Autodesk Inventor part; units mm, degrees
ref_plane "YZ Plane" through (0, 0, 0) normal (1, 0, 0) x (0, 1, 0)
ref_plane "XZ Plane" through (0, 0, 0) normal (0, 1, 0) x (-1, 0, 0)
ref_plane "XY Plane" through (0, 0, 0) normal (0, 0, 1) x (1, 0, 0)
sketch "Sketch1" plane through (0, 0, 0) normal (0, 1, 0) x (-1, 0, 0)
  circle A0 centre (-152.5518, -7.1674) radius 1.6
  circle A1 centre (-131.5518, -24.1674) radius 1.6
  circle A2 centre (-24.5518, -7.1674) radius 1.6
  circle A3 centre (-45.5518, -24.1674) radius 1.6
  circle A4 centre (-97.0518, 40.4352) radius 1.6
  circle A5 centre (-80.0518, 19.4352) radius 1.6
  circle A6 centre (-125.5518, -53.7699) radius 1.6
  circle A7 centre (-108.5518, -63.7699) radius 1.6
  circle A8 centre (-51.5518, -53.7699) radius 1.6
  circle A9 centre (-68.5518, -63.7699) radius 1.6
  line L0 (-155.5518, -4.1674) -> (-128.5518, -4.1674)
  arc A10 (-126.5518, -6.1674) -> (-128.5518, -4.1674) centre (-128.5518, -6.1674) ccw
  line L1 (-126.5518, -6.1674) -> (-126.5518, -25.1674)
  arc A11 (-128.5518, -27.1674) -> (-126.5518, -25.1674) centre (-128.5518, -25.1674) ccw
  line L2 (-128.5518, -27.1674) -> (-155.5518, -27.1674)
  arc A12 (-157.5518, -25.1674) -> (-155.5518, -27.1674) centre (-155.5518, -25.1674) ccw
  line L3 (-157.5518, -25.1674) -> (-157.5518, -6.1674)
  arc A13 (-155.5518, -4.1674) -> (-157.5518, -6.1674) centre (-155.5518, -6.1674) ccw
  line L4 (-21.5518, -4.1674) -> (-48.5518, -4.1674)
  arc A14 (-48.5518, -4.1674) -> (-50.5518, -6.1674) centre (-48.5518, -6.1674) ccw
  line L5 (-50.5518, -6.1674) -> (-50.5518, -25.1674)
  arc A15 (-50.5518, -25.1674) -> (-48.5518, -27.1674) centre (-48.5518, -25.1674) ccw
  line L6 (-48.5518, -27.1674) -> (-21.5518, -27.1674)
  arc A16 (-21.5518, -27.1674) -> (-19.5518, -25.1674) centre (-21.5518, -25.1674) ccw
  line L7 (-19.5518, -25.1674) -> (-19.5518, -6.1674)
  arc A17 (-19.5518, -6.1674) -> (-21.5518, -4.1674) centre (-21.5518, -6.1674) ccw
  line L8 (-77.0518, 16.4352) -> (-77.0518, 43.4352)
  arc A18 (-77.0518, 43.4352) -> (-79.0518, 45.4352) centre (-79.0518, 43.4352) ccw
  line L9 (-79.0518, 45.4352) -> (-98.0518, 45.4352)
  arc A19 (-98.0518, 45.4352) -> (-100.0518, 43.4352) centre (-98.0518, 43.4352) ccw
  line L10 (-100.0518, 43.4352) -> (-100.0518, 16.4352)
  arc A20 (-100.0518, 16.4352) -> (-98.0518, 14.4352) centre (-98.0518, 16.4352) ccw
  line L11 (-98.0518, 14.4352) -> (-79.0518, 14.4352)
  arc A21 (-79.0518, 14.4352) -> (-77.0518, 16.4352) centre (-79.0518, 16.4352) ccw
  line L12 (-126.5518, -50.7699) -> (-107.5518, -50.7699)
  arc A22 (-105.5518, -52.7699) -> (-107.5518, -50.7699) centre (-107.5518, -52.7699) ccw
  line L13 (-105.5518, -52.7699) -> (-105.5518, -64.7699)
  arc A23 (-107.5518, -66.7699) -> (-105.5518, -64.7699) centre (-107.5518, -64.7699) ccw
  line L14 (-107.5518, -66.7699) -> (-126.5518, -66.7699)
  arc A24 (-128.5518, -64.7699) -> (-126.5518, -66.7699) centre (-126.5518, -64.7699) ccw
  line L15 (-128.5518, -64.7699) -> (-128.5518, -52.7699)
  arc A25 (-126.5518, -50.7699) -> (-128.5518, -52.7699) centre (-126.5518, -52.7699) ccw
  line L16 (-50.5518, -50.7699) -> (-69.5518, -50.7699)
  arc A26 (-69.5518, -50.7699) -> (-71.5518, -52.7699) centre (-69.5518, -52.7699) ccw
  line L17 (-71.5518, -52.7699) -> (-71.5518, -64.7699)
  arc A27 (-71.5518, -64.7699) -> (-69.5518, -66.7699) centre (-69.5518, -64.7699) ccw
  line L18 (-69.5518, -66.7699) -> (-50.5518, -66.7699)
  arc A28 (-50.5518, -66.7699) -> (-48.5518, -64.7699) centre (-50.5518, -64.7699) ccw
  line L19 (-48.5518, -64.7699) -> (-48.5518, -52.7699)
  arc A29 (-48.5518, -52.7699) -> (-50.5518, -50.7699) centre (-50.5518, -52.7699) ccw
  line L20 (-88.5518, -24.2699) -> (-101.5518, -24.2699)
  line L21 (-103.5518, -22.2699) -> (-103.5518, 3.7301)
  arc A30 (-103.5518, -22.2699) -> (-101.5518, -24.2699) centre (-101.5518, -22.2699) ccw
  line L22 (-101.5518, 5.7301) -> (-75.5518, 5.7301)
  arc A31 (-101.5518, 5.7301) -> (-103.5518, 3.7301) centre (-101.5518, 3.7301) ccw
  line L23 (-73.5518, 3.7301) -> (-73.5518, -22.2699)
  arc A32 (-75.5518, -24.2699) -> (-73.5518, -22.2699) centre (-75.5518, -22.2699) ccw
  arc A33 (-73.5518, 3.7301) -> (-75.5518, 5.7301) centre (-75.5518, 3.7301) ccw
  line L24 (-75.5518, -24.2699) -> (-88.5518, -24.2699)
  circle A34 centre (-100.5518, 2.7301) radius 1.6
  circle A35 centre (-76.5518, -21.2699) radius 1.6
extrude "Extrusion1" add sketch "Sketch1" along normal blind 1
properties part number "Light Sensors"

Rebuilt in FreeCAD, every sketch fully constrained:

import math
import FreeCAD as App
import Part
import Sketcher

doc = App.newDocument("Part")
body = doc.addObject("PartDesign::Body", "Body")
body.AllowCompound = True

sketch1 = body.newObject("Sketcher::SketchObject", "Sketch")
sketch1.AttachmentSupport = (doc.getObject("XZ_Plane"), [""])
sketch1.MapMode = "FlatFace"
sketch1.addGeometry([
    Part.LineSegment(App.Vector(128.5518, -4.1674, 0), App.Vector(155.5518, -4.1674, 0)),
    Part.ArcOfCircle(Part.Circle(App.Vector(155.5518, -6.1674, 0), App.Vector(0, 0, 1), 2), math.radians(0), math.radians(90)),
    Part.LineSegment(App.Vector(157.5518, -6.1674, 0), App.Vector(157.5518, -25.1674, 0)),
    Part.ArcOfCircle(Part.Circle(App.Vector(155.5518, -25.1674, 0), App.Vector(0, 0, 1), 2), math.radians(-90), math.radians(0)),
    Part.LineSegment(App.Vector(155.5518, -27.1674, 0), App.Vector(128.5518, -27.1674, 0)),
    Part.ArcOfCircle(Part.Circle(App.Vector(128.5518, -25.1674, 0), App.Vector(0, 0, 1), 2), math.radians(180), math.radians(270)),
    Part.LineSegment(App.Vector(126.5518, -25.1674, 0), App.Vector(126.5518, -6.1674, 0)),
    Part.ArcOfCircle(Part.Circle(App.Vector(128.5518, -6.1674, 0), App.Vector(0, 0, 1), 2), math.radians(90), math.radians(180)),
    Part.Circle(App.Vector(131.5518, -24.1674, 0), App.Vector(0, 0, 1), 1.6),
    Part.Circle(App.Vector(152.5518, -7.1674, 0), App.Vector(0, 0, 1), 1.6),
    Part.ArcOfCircle(Part.Circle(App.Vector(21.5518, -6.1674, 0), App.Vector(0, 0, 1), 2), math.radians(90), math.radians(180)),
    Part.LineSegment(App.Vector(21.5518, -4.1674, 0), App.Vector(48.5518, -4.1674, 0)),
    Part.ArcOfCircle(Part.Circle(App.Vector(48.5518, -6.1674, 0), App.Vector(0, 0, 1), 2), math.radians(0), math.radians(90)),
    Part.LineSegment(App.Vector(50.5518, -6.1674, 0), App.Vector(50.5518, -25.1674, 0)),
    Part.ArcOfCircle(Part.Circle(App.Vector(48.5518, -25.1674, 0), App.Vector(0, 0, 1), 2), math.radians(-90), math.radians(0)),
    Part.LineSegment(App.Vector(48.5518, -27.1674, 0), App.Vector(21.5518, -27.1674, 0)),
    Part.ArcOfCircle(Part.Circle(App.Vector(21.5518, -25.1674, 0), App.Vector(0, 0, 1), 2), math.radians(180), math.radians(270)),
    Part.LineSegment(App.Vector(19.5518, -25.1674, 0), App.Vector(19.5518, -6.1674, 0)),
    Part.Circle(App.Vector(45.5518, -24.1674, 0), App.Vector(0, 0, 1), 1.6),
    Part.Circle(App.Vector(24.5518, -7.1674, 0), App.Vector(0, 0, 1), 1.6),
    Part.ArcOfCircle(Part.Circle(App.Vector(79.0518, 16.4352, 0), App.Vector(0, 0, 1), 2), math.radians(180), math.radians(270)),
    Part.LineSegment(App.Vector(77.0518, 16.4352, 0), App.Vector(77.0518, 43.4352, 0)),
    Part.ArcOfCircle(Part.Circle(App.Vector(79.0518, 43.4352, 0), App.Vector(0, 0, 1), 2), math.radians(90), math.radians(180)),
    Part.LineSegment(App.Vector(79.0518, 45.4352, 0), App.Vector(98.0518, 45.4352, 0)),
    Part.ArcOfCircle(Part.Circle(App.Vector(98.0518, 43.4352, 0), App.Vector(0, 0, 1), 2), math.radians(0), math.radians(90)),
    Part.LineSegment(App.Vector(100.0518, 43.4352, 0), App.Vector(100.0518, 16.4352, 0)),
    Part.ArcOfCircle(Part.Circle(App.Vector(98.0518, 16.4352, 0), App.Vector(0, 0, 1), 2), math.radians(-90), math.radians(0)),
    Part.LineSegment(App.Vector(98.0518, 14.4352, 0), App.Vector(79.0518, 14.4352, 0)),
    Part.Circle(App.Vector(97.0518, 40.4352, 0), App.Vector(0, 0, 1), 1.6),
    Part.Circle(App.Vector(80.0518, 19.4352, 0), App.Vector(0, 0, 1), 1.6),
    Part.LineSegment(App.Vector(107.5518, -50.7699, 0), App.Vector(126.5518, -50.7699, 0)),
    Part.ArcOfCircle(Part.Circle(App.Vector(126.5518, -52.7699, 0), App.Vector(0, 0, 1), 2), math.radians(0), math.radians(90)),
    Part.LineSegment(App.Vector(128.5518, -52.7699, 0), App.Vector(128.5518, -64.7699, 0)),
    Part.ArcOfCircle(Part.Circle(App.Vector(126.5518, -64.7699, 0), App.Vector(0, 0, 1), 2), math.radians(-90), math.radians(0)),
    Part.LineSegment(App.Vector(126.5518, -66.7699, 0), App.Vector(107.5518, -66.7699, 0)),
    Part.ArcOfCircle(Part.Circle(App.Vector(107.5518, -64.7699, 0), App.Vector(0, 0, 1), 2), math.radians(180), math.radians(270)),
    Part.LineSegment(App.Vector(105.5518, -64.7699, 0), App.Vector(105.5518, -52.7699, 0)),
    Part.ArcOfCircle(Part.Circle(App.Vector(107.5518, -52.7699, 0), App.Vector(0, 0, 1), 2), math.radians(90), math.radians(180)),
    Part.Circle(App.Vector(125.5518, -53.7699, 0), App.Vector(0, 0, 1), 1.6),
    Part.Circle(App.Vector(108.5518, -63.7699, 0), App.Vector(0, 0, 1), 1.6),
    Part.ArcOfCircle(Part.Circle(App.Vector(50.5518, -52.7699, 0), App.Vector(0, 0, 1), 2), math.radians(90), math.radians(180)),
    Part.LineSegment(App.Vector(50.5518, -50.7699, 0), App.Vector(69.5518, -50.7699, 0)),
    Part.ArcOfCircle(Part.Circle(App.Vector(69.5518, -52.7699, 0), App.Vector(0, 0, 1), 2), math.radians(0), math.radians(90)),
    Part.LineSegment(App.Vector(71.5518, -52.7699, 0), App.Vector(71.5518, -64.7699, 0)),
    Part.ArcOfCircle(Part.Circle(App.Vector(69.5518, -64.7699, 0), App.Vector(0, 0, 1), 2), math.radians(-90), math.radians(0)),
    Part.LineSegment(App.Vector(69.5518, -66.7699, 0), App.Vector(50.5518, -66.7699, 0)),
    Part.ArcOfCircle(Part.Circle(App.Vector(50.5518, -64.7699, 0), App.Vector(0, 0, 1), 2), math.radians(180), math.radians(270)),
    Part.LineSegment(App.Vector(48.5518, -64.7699, 0), App.Vector(48.5518, -52.7699, 0)),
    Part.Circle(App.Vector(68.5518, -63.7699, 0), App.Vector(0, 0, 1), 1.6),
    Part.Circle(App.Vector(51.5518, -53.7699, 0), App.Vector(0, 0, 1), 1.6),
    Part.LineSegment(App.Vector(101.5518, -24.2699, 0), App.Vector(75.5518, -24.2699, 0)),
    Part.ArcOfCircle(Part.Circle(App.Vector(75.5518, -22.2699, 0), App.Vector(0, 0, 1), 2), math.radians(180), math.radians(270)),
    Part.LineSegment(App.Vector(73.5518, -22.2699, 0), App.Vector(73.5518, 3.7301, 0)),
    Part.ArcOfCircle(Part.Circle(App.Vector(75.5518, 3.7301, 0), App.Vector(0, 0, 1), 2), math.radians(90), math.radians(180)),
    Part.LineSegment(App.Vector(75.5518, 5.7301, 0), App.Vector(101.5518, 5.7301, 0)),
    Part.ArcOfCircle(Part.Circle(App.Vector(101.5518, 3.7301, 0), App.Vector(0, 0, 1), 2), math.radians(0), math.radians(90)),
    Part.LineSegment(App.Vector(103.5518, 3.7301, 0), App.Vector(103.5518, -22.2699, 0)),
    Part.ArcOfCircle(Part.Circle(App.Vector(101.5518, -22.2699, 0), App.Vector(0, 0, 1), 2), math.radians(-90), math.radians(0)),
    Part.Circle(App.Vector(76.5518, -21.2699, 0), App.Vector(0, 0, 1), 1.6),
    Part.Circle(App.Vector(100.5518, 2.7301, 0), App.Vector(0, 0, 1), 1.6),
], False)
sketch1.addConstraint([
    Sketcher.Constraint("Tangent", 0, 2, 1, 2),
    Sketcher.Constraint("Tangent", 1, 1, 2, 1),
    Sketcher.Constraint("Tangent", 2, 2, 3, 2),
    Sketcher.Constraint("Tangent", 3, 1, 4, 1),
    Sketcher.Constraint("Tangent", 4, 2, 5, 2),
    Sketcher.Constraint("Tangent", 5, 1, 6, 1),
    Sketcher.Constraint("Tangent", 6, 2, 7, 2),
    Sketcher.Constraint("Tangent", 7, 1, 0, 1),
    Sketcher.Constraint("Tangent", 10, 1, 11, 1),
    Sketcher.Constraint("Tangent", 11, 2, 12, 2),
    Sketcher.Constraint("Tangent", 12, 1, 13, 1),
    Sketcher.Constraint("Tangent", 13, 2, 14, 2),
    Sketcher.Constraint("Tangent", 14, 1, 15, 1),
    Sketcher.Constraint("Tangent", 15, 2, 16, 2),
    Sketcher.Constraint("Tangent", 16, 1, 17, 1),
    Sketcher.Constraint("Tangent", 17, 2, 10, 2),
    Sketcher.Constraint("Tangent", 20, 1, 21, 1),
    Sketcher.Constraint("Tangent", 21, 2, 22, 2),
    Sketcher.Constraint("Tangent", 22, 1, 23, 1),
    Sketcher.Constraint("Tangent", 23, 2, 24, 2),
    Sketcher.Constraint("Tangent", 24, 1, 25, 1),
    Sketcher.Constraint("Tangent", 25, 2, 26, 2),
    Sketcher.Constraint("Tangent", 26, 1, 27, 1),
    Sketcher.Constraint("Tangent", 27, 2, 20, 2),
    Sketcher.Constraint("Tangent", 30, 2, 31, 2),
    Sketcher.Constraint("Tangent", 31, 1, 32, 1),
    Sketcher.Constraint("Tangent", 32, 2, 33, 2),
    Sketcher.Constraint("Tangent", 33, 1, 34, 1),
    Sketcher.Constraint("Tangent", 34, 2, 35, 2),
    Sketcher.Constraint("Tangent", 35, 1, 36, 1),
    Sketcher.Constraint("Tangent", 36, 2, 37, 2),
    Sketcher.Constraint("Tangent", 37, 1, 30, 1),
    Sketcher.Constraint("Tangent", 40, 1, 41, 1),
    Sketcher.Constraint("Tangent", 41, 2, 42, 2),
    Sketcher.Constraint("Tangent", 42, 1, 43, 1),
    Sketcher.Constraint("Tangent", 43, 2, 44, 2),
    Sketcher.Constraint("Tangent", 44, 1, 45, 1),
    Sketcher.Constraint("Tangent", 45, 2, 46, 2),
    Sketcher.Constraint("Tangent", 46, 1, 47, 1),
    Sketcher.Constraint("Tangent", 47, 2, 40, 2),
    Sketcher.Constraint("Tangent", 50, 2, 51, 2),
    Sketcher.Constraint("Tangent", 51, 1, 52, 1),
    Sketcher.Constraint("Tangent", 52, 2, 53, 2),
    Sketcher.Constraint("Tangent", 53, 1, 54, 1),
    Sketcher.Constraint("Tangent", 54, 2, 55, 2),
    Sketcher.Constraint("Tangent", 55, 1, 56, 1),
    Sketcher.Constraint("Tangent", 56, 2, 57, 2),
    Sketcher.Constraint("Tangent", 57, 1, 50, 1),
    Sketcher.Constraint("Horizontal", 0),
    Sketcher.Constraint("Vertical", 2),
    Sketcher.Constraint("Horizontal", 4),
    Sketcher.Constraint("Vertical", 6),
    Sketcher.Constraint("Horizontal", 11),
    Sketcher.Constraint("Vertical", 13),
    Sketcher.Constraint("Horizontal", 15),
    Sketcher.Constraint("Vertical", 17),
    Sketcher.Constraint("Vertical", 21),
    Sketcher.Constraint("Horizontal", 23),
    Sketcher.Constraint("Vertical", 25),
    Sketcher.Constraint("Horizontal", 27),
    Sketcher.Constraint("Horizontal", 30),
    Sketcher.Constraint("Vertical", 32),
    Sketcher.Constraint("Horizontal", 34),
    Sketcher.Constraint("Vertical", 36),
    Sketcher.Constraint("Horizontal", 41),
    Sketcher.Constraint("Vertical", 43),
    Sketcher.Constraint("Horizontal", 45),
    Sketcher.Constraint("Vertical", 47),
    Sketcher.Constraint("Horizontal", 50),
    Sketcher.Constraint("Vertical", 52),
    Sketcher.Constraint("Horizontal", 54),
    Sketcher.Constraint("Vertical", 56),
    Sketcher.Constraint("Equal", 1, 3),
    Sketcher.Constraint("Equal", 3, 5),
    Sketcher.Constraint("Equal", 5, 7),
    Sketcher.Constraint("Equal", 8, 9),
    Sketcher.Constraint("Equal", 7, 10),
    Sketcher.Constraint("Equal", 10, 12),
    Sketcher.Constraint("Equal", 12, 14),
    Sketcher.Constraint("Equal", 14, 16),
    Sketcher.Constraint("Equal", 9, 18),
    Sketcher.Constraint("Equal", 18, 19),
    Sketcher.Constraint("Equal", 16, 20),
    Sketcher.Constraint("Equal", 20, 22),
    Sketcher.Constraint("Equal", 22, 24),
    Sketcher.Constraint("Equal", 24, 26),
    Sketcher.Constraint("Equal", 19, 28),
    Sketcher.Constraint("Equal", 28, 29),
    Sketcher.Constraint("Equal", 26, 31),
    Sketcher.Constraint("Equal", 31, 33),
    Sketcher.Constraint("Equal", 33, 35),
    Sketcher.Constraint("Equal", 35, 37),
    Sketcher.Constraint("Equal", 29, 38),
    Sketcher.Constraint("Equal", 38, 39),
    Sketcher.Constraint("Equal", 37, 40),
    Sketcher.Constraint("Equal", 40, 42),
    Sketcher.Constraint("Equal", 42, 44),
    Sketcher.Constraint("Equal", 44, 46),
    Sketcher.Constraint("Equal", 39, 48),
    Sketcher.Constraint("Equal", 48, 49),
    Sketcher.Constraint("Equal", 46, 51),
    Sketcher.Constraint("Equal", 51, 53),
    Sketcher.Constraint("Equal", 53, 55),
    Sketcher.Constraint("Equal", 55, 57),
    Sketcher.Constraint("Equal", 49, 58),
    Sketcher.Constraint("Equal", 58, 59),
    Sketcher.Constraint("Horizontal", 7, 3, 10, 3),
    Sketcher.Constraint("Horizontal", 5, 3, 14, 3),
    Sketcher.Constraint("Horizontal", 8, 3, 18, 3),
    Sketcher.Constraint("Horizontal", 9, 3, 19, 3),
    Sketcher.Constraint("Horizontal", 37, 3, 40, 3),
    Sketcher.Constraint("Horizontal", 35, 3, 44, 3),
    Sketcher.Constraint("Horizontal", 39, 3, 48, 3),
    Sketcher.Constraint("Horizontal", 38, 3, 49, 3),
    Sketcher.Constraint("Vertical", 33, 3, 5, 1),
    Sketcher.Constraint("Vertical", 46, 3, 12, 1),
    Sketcher.Constraint("Equal", 4, 11),
    Sketcher.Constraint("Equal", 27, 30),
    Sketcher.Constraint("Equal", 34, 41),
    Sketcher.Constraint("Equal", 45, 2),
    Sketcher.Constraint("Equal", 15, 21),
    Sketcher.Constraint("Equal", 54, 52),
    Sketcher.Constraint("Radius", 1, 2.0),
    Sketcher.Constraint("Diameter", 8, 3.2),
    Sketcher.Constraint("DistanceX", 0, 1, 0, 2, 27.0),
    Sketcher.Constraint("DistanceX", 23, 1, 23, 2, 19.0),
    Sketcher.Constraint("DistanceX", 50, 2, 50, 1, 26.0),
    Sketcher.Constraint("DistanceY", 32, 2, 32, 1, 12.0),
    Sketcher.Constraint("DistanceY", 31, 3, -1, 1, 52.77),
    Sketcher.Constraint("DistanceY", 38, 3, -1, 1, 53.77),
    Sketcher.Constraint("DistanceY", 39, 3, -1, 1, 63.77),
    Sketcher.Constraint("DistanceY", 51, 3, -1, 1, 22.27),
    Sketcher.Constraint("DistanceY", 58, 3, -1, 1, 21.27),
    Sketcher.Constraint("DistanceY", -1, 1, 59, 3, 2.73),
    Sketcher.Constraint("DistanceX", -1, 1, 1, 3, 155.5518),
    Sketcher.Constraint("DistanceY", 1, 3, -1, 1, 6.1674),
    Sketcher.Constraint("DistanceX", -1, 1, 8, 3, 131.5518),
    Sketcher.Constraint("DistanceY", 8, 3, -1, 1, 24.1674),
    Sketcher.Constraint("DistanceX", -1, 1, 9, 3, 152.5518),
    Sketcher.Constraint("DistanceY", 9, 3, -1, 1, 7.1674),
    Sketcher.Constraint("DistanceX", -1, 1, 10, 3, 21.5518),
    Sketcher.Constraint("DistanceX", -1, 1, 18, 3, 45.5518),
    Sketcher.Constraint("DistanceX", -1, 1, 19, 3, 24.5518),
    Sketcher.Constraint("DistanceX", -1, 1, 20, 3, 79.0518),
    Sketcher.Constraint("DistanceY", -1, 1, 20, 3, 16.4352),
    Sketcher.Constraint("DistanceX", -1, 1, 28, 3, 97.0518),
    Sketcher.Constraint("DistanceY", -1, 1, 28, 3, 40.4352),
    Sketcher.Constraint("DistanceX", -1, 1, 29, 3, 80.0518),
    Sketcher.Constraint("DistanceY", -1, 1, 29, 3, 19.4352),
    Sketcher.Constraint("DistanceX", -1, 1, 38, 3, 125.5518),
    Sketcher.Constraint("DistanceX", -1, 1, 39, 3, 108.5518),
    Sketcher.Constraint("DistanceX", -1, 1, 48, 3, 68.5518),
    Sketcher.Constraint("DistanceX", -1, 1, 49, 3, 51.5518),
    Sketcher.Constraint("DistanceX", -1, 1, 51, 3, 75.5518),
    Sketcher.Constraint("DistanceX", -1, 1, 58, 3, 76.5518),
    Sketcher.Constraint("DistanceX", -1, 1, 59, 3, 100.5518),
])
pad1 = body.newObject("PartDesign::Pad", "Pad")
pad1.Profile = sketch1
pad1.Length = 1
pad1.Reversed = True

doc.recompute()
